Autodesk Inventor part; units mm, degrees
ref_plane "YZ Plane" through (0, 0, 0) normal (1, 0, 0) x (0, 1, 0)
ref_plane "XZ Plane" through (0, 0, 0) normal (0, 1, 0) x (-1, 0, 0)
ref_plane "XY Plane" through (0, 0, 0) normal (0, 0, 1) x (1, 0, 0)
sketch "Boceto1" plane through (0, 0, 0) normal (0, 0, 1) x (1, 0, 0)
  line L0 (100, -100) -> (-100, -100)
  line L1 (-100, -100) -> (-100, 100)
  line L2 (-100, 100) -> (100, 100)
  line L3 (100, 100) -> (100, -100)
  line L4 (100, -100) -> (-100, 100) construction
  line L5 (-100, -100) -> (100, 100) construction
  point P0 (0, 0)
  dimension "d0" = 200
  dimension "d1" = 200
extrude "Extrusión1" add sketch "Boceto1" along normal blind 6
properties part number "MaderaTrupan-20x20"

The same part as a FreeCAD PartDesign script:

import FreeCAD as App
import Part
import Sketcher


def add_polygon(sketch, points):
    """Adds a closed chain of lines whose ends are joined by coincident constraints."""
    first, n = sketch.GeometryCount, len(points)
    for a, b in zip(points, points[1:] + points[:1]):
        sketch.addGeometry(Part.LineSegment(App.Vector(*a, 0), App.Vector(*b, 0)), False)
    for i in range(n):
        sketch.addConstraint(Sketcher.Constraint("Coincident", first + i, 2, first + (i + 1) % n, 1))

doc = App.newDocument("Part")
body = doc.addObject("PartDesign::Body", "Body")

sketch1 = doc.addObject("Sketcher::SketchObject", "Sketch")
body.addObject(sketch1)
sketch1.AttachmentSupport = (doc.XY_Plane, [""])
sketch1.MapMode = "FlatFace"
add_polygon(sketch1, [(-100, -100), (100, -100), (100, 100), (-100, 100)])
sketch1.addConstraint(Sketcher.Constraint("Horizontal", 0))
sketch1.addConstraint(Sketcher.Constraint("Vertical", 1))
sketch1.addConstraint(Sketcher.Constraint("Horizontal", 2))
sketch1.addConstraint(Sketcher.Constraint("Vertical", 3))
sketch1.addConstraint(Sketcher.Constraint("Symmetric", 0, 2, 2, 2, -1, 1))
sketch1.addConstraint(Sketcher.Constraint("Equal", 2, 1))
sketch1.addConstraint(Sketcher.Constraint("DistanceX", 0, 1, 0, 2, 200.0))
pad1 = doc.addObject("PartDesign::Pad", "Pad")
body.addObject(pad1)
pad1.Profile = sketch1
pad1.Length = 6

doc.recompute()
